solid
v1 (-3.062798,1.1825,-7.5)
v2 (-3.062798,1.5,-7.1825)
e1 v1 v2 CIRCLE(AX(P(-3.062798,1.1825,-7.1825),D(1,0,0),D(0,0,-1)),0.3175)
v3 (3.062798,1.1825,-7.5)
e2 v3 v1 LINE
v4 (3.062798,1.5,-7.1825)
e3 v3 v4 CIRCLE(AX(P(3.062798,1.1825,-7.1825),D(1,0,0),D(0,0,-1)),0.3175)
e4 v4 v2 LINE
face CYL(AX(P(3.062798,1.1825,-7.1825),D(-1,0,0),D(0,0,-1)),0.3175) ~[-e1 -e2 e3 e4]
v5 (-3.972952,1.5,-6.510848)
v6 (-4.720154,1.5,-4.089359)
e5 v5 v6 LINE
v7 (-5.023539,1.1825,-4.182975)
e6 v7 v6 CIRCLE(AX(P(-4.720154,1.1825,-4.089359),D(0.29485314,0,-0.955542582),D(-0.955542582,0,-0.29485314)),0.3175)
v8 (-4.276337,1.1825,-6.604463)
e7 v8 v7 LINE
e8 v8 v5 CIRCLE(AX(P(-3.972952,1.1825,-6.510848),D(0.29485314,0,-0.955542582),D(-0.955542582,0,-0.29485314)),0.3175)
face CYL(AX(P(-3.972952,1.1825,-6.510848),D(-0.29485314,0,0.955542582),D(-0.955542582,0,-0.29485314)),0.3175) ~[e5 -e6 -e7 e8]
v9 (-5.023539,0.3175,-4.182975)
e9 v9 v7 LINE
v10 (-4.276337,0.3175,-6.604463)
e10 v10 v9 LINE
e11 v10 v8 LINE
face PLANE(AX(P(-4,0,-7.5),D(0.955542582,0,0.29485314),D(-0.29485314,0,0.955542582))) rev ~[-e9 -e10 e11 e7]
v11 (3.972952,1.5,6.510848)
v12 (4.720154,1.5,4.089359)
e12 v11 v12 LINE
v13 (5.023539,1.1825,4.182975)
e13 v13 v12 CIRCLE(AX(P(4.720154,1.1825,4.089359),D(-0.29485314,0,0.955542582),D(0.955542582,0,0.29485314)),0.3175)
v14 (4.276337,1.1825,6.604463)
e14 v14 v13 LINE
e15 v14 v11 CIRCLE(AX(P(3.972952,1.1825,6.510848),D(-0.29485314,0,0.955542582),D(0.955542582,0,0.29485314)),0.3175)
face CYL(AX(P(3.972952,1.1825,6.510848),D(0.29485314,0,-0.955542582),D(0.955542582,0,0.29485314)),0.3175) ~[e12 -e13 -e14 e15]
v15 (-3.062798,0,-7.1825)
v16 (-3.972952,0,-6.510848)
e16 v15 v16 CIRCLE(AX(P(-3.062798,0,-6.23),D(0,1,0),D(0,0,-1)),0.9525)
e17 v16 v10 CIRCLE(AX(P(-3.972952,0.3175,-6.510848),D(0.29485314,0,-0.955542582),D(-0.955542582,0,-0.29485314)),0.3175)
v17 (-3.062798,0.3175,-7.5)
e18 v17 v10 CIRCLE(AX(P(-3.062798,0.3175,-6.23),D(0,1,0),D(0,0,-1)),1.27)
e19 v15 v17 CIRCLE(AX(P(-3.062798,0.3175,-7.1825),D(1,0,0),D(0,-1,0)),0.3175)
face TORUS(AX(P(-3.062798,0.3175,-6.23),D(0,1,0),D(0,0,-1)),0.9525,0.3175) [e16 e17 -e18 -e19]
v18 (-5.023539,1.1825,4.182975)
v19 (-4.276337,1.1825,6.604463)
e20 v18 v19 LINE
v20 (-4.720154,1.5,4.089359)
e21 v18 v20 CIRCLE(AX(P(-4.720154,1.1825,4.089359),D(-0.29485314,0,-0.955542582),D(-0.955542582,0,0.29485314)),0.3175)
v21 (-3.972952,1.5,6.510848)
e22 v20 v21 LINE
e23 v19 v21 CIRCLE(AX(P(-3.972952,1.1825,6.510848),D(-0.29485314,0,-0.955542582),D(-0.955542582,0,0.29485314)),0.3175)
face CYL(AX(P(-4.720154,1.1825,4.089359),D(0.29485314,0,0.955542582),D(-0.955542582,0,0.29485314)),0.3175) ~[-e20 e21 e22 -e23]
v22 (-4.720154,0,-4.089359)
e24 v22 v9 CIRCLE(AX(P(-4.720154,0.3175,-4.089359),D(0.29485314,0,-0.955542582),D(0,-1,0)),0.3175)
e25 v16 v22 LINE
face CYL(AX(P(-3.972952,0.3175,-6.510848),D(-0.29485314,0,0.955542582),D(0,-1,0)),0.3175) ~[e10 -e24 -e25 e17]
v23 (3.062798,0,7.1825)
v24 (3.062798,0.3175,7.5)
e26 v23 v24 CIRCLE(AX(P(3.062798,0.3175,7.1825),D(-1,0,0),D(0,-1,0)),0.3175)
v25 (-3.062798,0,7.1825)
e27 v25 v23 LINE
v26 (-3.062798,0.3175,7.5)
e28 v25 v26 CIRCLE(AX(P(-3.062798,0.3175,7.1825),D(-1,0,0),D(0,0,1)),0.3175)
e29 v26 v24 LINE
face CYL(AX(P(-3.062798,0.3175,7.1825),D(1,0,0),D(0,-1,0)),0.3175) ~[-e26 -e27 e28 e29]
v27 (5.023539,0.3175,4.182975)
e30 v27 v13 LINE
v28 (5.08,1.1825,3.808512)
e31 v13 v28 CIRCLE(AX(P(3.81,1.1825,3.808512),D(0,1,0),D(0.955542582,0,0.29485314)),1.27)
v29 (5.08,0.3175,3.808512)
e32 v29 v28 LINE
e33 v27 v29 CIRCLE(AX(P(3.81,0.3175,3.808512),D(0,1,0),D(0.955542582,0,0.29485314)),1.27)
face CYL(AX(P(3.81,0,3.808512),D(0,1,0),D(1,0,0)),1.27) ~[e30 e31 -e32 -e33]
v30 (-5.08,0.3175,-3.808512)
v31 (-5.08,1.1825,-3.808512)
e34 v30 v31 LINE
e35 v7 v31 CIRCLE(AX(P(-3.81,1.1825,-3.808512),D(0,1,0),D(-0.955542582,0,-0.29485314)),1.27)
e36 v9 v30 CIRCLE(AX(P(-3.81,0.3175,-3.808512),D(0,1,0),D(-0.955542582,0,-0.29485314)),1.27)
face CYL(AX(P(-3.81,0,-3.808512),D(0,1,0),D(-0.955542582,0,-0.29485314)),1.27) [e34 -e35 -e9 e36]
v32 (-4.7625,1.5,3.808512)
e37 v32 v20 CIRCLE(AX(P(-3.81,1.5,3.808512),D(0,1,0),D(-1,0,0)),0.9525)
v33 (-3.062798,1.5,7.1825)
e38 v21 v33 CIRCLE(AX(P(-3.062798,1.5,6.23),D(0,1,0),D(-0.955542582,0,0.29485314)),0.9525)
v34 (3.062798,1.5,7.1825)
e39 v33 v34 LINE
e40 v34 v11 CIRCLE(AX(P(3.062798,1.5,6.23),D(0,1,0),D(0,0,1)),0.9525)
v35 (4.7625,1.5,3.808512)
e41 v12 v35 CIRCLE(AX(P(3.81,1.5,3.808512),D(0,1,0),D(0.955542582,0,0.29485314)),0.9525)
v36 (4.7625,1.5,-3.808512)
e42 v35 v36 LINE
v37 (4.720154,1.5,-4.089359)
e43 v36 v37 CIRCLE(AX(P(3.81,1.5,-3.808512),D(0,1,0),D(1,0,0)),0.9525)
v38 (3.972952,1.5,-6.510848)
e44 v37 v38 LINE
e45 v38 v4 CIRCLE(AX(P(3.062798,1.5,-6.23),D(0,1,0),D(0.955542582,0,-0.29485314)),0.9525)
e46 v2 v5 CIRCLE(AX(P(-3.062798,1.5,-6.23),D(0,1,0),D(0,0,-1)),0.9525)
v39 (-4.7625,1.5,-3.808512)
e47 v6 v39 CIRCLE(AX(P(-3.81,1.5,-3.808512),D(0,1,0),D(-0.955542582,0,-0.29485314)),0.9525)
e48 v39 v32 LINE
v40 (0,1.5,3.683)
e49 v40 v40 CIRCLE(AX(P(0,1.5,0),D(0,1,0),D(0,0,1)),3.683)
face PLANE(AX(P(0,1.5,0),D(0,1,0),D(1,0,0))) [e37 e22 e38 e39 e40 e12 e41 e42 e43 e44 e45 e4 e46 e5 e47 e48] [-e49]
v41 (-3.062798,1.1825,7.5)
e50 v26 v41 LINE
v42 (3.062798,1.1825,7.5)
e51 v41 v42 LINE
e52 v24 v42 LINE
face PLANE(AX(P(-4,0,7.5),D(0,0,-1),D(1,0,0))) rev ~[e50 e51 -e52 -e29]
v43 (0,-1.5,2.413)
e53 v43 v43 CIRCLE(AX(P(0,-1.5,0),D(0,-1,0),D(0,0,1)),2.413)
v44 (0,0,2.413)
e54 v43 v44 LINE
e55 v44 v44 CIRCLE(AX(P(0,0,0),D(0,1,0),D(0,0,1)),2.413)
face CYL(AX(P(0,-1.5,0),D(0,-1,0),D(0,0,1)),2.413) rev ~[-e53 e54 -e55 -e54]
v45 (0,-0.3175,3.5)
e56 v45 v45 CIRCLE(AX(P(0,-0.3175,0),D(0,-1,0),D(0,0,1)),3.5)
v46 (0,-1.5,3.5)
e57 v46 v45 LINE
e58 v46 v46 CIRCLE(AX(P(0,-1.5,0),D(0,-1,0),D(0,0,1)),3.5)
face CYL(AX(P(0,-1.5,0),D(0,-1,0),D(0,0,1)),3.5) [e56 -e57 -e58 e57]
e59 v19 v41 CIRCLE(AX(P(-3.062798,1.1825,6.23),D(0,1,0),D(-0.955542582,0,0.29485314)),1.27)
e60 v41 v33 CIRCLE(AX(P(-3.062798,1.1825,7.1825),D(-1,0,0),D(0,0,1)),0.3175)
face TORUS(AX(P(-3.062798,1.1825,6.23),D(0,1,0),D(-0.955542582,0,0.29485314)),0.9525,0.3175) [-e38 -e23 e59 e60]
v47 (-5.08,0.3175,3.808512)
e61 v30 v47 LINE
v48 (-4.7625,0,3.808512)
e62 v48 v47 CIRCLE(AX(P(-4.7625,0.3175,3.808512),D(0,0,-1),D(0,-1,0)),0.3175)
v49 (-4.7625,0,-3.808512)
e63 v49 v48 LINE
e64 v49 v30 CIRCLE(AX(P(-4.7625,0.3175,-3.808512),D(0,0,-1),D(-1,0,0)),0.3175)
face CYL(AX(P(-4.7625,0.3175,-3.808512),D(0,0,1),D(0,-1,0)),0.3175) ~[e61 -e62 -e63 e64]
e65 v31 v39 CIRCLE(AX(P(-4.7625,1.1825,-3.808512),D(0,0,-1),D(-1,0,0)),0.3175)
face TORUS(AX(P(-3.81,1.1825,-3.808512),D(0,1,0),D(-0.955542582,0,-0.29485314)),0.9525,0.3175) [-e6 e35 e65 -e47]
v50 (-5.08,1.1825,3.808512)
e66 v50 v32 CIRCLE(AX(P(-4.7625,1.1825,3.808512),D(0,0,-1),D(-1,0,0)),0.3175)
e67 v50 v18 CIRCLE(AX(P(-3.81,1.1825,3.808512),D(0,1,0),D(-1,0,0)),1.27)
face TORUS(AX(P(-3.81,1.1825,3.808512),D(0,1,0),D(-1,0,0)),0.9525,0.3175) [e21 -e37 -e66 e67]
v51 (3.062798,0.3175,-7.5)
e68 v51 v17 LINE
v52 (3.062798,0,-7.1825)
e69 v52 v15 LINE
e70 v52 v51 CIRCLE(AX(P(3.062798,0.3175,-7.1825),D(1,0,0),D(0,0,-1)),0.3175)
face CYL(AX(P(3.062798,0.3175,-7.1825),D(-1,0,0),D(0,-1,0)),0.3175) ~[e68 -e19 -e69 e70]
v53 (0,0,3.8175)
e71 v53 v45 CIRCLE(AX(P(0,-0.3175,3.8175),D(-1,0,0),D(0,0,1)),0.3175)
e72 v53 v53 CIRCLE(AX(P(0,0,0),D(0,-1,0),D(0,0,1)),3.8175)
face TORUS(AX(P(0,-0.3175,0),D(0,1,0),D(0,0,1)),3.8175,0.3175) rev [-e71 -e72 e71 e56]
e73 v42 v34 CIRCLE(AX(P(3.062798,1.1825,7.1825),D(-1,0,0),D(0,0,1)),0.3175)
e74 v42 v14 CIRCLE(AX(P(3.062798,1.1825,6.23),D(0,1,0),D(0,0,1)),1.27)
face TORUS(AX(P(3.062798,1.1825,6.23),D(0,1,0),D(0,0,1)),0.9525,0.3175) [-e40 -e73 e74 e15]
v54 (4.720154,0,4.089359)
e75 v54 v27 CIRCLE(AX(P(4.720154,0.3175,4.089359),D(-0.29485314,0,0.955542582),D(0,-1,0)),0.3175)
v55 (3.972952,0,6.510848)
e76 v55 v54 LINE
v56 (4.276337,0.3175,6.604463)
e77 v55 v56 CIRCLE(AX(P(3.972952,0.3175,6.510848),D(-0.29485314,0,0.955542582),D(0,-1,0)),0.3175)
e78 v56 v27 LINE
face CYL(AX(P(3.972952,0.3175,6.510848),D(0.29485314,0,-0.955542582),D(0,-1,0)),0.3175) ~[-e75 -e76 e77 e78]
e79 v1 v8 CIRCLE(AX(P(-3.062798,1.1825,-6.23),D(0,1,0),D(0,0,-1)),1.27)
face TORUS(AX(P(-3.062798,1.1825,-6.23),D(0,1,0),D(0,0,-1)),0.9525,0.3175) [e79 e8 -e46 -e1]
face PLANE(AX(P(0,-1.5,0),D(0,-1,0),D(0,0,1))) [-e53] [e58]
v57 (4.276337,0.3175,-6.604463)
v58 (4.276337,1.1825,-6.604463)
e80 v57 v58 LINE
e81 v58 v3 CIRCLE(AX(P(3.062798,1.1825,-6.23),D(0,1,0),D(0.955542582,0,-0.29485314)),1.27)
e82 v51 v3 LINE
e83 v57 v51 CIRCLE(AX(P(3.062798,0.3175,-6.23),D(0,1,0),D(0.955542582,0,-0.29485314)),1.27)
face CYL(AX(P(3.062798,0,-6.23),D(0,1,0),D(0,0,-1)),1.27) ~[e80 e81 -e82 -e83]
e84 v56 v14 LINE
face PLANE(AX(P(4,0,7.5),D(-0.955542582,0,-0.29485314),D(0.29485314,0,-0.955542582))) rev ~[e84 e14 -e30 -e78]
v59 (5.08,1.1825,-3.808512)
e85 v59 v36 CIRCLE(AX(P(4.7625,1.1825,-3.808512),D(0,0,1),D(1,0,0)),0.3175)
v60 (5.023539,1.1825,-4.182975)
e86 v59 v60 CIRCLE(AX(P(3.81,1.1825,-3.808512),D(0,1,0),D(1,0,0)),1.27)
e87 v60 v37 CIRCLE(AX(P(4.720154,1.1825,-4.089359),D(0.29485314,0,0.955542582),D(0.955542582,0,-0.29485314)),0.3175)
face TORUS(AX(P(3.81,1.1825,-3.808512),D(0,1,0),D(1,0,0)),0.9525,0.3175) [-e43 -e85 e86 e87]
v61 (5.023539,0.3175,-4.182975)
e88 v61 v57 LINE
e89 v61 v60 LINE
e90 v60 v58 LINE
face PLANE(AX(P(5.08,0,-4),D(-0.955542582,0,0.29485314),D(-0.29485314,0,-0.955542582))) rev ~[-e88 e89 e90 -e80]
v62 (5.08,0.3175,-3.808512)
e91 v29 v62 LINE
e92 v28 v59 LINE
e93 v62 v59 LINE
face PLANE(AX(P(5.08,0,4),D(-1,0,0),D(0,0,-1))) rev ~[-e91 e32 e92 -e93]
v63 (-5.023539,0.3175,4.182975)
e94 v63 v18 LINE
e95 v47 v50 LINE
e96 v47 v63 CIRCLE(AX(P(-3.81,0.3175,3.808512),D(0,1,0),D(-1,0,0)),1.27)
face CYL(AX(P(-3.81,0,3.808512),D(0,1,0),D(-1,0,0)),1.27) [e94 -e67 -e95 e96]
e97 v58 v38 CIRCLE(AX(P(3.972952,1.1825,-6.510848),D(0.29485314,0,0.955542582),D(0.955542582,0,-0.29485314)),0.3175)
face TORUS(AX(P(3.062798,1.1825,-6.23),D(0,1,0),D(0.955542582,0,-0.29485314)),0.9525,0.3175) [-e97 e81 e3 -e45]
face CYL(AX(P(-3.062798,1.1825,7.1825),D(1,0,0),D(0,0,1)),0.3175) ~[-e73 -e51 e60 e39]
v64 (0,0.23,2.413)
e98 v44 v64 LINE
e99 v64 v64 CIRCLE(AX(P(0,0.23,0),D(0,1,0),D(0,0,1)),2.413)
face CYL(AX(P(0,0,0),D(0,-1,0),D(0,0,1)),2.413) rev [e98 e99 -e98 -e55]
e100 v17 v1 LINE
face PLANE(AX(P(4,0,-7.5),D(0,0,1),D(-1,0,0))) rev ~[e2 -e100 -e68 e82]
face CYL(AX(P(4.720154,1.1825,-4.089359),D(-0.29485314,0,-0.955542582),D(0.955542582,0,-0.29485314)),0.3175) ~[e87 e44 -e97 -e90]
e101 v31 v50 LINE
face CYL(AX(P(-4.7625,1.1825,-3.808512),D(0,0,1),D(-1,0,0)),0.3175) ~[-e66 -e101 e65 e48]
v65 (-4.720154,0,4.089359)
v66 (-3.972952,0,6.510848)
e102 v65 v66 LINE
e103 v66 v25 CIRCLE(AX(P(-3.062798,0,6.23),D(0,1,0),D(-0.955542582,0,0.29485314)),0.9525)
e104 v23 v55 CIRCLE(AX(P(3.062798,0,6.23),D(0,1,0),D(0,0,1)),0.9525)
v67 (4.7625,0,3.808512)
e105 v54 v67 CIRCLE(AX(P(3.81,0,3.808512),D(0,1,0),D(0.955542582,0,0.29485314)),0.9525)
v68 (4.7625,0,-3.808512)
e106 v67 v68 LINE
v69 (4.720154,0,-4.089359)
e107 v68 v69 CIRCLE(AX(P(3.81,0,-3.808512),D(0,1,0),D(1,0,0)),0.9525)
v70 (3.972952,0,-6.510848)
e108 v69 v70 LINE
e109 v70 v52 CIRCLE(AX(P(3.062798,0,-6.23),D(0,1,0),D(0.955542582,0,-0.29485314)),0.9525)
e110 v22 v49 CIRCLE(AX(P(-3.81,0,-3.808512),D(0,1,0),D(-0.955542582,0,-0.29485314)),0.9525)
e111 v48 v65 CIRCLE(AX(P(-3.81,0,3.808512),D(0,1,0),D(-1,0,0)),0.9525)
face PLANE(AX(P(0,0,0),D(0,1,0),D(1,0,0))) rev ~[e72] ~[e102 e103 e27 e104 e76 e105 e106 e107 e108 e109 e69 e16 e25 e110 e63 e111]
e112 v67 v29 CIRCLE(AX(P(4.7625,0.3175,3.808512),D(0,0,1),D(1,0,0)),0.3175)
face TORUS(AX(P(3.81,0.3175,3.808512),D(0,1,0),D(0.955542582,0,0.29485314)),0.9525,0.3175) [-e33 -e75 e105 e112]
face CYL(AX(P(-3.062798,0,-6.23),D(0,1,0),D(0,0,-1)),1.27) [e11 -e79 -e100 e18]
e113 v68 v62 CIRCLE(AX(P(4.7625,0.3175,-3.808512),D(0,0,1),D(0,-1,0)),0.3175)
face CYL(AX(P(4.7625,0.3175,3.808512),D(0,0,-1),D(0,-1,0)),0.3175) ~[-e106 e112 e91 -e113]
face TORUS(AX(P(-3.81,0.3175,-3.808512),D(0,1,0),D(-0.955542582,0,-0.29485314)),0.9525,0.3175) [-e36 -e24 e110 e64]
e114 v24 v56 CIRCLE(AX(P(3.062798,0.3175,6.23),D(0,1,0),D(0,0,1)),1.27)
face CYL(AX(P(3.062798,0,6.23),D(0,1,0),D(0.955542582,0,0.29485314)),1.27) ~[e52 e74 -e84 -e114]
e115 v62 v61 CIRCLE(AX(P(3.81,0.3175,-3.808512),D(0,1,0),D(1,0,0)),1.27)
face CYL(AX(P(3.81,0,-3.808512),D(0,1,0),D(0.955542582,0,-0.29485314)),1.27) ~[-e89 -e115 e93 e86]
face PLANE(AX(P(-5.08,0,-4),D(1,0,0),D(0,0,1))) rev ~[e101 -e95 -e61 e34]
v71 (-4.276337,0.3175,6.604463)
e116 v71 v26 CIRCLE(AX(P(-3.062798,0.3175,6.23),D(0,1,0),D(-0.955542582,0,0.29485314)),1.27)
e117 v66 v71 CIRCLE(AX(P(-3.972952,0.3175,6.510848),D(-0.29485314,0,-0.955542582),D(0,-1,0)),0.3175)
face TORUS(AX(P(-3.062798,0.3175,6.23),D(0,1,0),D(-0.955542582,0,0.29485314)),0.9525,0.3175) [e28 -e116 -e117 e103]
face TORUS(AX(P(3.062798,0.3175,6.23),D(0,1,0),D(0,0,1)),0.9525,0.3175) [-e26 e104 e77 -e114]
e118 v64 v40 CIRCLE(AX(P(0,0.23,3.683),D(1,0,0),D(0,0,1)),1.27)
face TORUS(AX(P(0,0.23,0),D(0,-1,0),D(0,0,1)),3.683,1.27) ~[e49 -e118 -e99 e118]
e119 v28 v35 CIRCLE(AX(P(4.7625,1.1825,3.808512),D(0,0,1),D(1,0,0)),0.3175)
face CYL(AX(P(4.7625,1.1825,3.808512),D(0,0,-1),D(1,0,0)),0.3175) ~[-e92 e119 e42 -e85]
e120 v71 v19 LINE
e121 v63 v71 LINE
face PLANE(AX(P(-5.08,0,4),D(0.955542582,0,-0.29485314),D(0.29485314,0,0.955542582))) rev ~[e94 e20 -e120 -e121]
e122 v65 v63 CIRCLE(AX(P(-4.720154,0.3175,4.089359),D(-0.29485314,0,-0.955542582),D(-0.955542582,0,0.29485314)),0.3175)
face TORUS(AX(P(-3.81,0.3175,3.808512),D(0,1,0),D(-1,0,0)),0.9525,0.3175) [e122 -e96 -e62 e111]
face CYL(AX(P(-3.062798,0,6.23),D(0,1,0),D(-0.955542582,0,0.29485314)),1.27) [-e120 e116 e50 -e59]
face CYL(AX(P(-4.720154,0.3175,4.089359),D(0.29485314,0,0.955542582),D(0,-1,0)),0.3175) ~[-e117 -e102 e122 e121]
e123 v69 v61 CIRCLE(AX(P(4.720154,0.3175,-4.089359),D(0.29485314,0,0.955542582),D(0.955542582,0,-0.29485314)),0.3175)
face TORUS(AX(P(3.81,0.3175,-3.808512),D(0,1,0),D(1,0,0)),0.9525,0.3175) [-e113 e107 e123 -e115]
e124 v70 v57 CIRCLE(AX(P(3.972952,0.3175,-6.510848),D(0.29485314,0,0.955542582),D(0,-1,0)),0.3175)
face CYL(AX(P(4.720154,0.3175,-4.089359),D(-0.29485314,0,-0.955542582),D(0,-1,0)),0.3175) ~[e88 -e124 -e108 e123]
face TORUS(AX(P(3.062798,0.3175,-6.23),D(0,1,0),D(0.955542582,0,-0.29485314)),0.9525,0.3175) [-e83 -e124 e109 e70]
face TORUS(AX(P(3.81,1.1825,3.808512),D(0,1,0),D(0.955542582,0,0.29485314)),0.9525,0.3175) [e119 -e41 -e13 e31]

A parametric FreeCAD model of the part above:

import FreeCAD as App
import Part
import Sketcher
from FreeCAD import Vector
Q = App.Units.Quantity


def edges_at(feature, points):
    """Names of the edges that pass closest to the given points."""
    edges = feature.Shape.Edges
    near = lambda p: min(range(len(edges)), key=lambda i: edges[i].distToShape(Part.Vertex(*p))[0])
    return sorted({f"Edge{near(p) + 1}" for p in points})


def add_polygon(sketch, points):
    """Adds a closed chain of lines whose ends are joined by coincident constraints."""
    first, n = sketch.GeometryCount, len(points)
    for a, b in zip(points, points[1:] + points[:1]):
        sketch.addGeometry(Part.LineSegment(App.Vector(*a, 0), App.Vector(*b, 0)), False)
    for i in range(n):
        sketch.addConstraint(Sketcher.Constraint("Coincident", first + i, 2, first + (i + 1) % n, 1))

doc = App.newDocument("Part")
params = doc.addObject("Spreadsheet::Sheet", "Params")
for row, (alias, value) in enumerate([
    ("sketch1_width", "8 mm"),
    ("pad1_length", "1.5 mm"),
    ("sketch2_diameter", "7 mm"),
    ("pad2_length", "1.5 mm"),
    ("fillet_radius", "1.27 mm"),
    ("fillet2_radius", "0.3175 mm"),
], start=1):
    params.set(f"A{row}", alias)
    params.set(f"B{row}", "=" + value)
    params.setAlias(f"B{row}", alias)

body = doc.addObject("PartDesign::Body", "Body")

# Sketch on XZ plane
sketch1 = doc.addObject("Sketcher::SketchObject", "Sketch")
body.addObject(sketch1)
sketch1.AttachmentSupport = (doc.XZ_Plane, [""])
sketch1.MapMode = "FlatFace"
add_polygon(sketch1, [(4, -7.5), (-4, -7.5), (-5.1, -4), (-5.1, 4), (-4, 7.5), (4, 7.5), (5.1, 4), (5.1, -4)])  # lines 0-7
sketch1.addGeometry(Part.Circle(Vector(0, 0, 0), Vector(0, 0, 1), 2.4), False)  # 8
sketch1.addConstraint(Sketcher.Constraint("Horizontal", 0))
sketch1.addConstraint(Sketcher.Constraint("Vertical", 2))
sketch1.addConstraint(Sketcher.Constraint("Horizontal", 4))
sketch1.addConstraint(Sketcher.Constraint("Vertical", 6))
sketch1.addConstraint(Sketcher.Constraint("Coincident", 8, 3, -1, 1))
sketch1.addConstraint(Sketcher.Constraint("Symmetric", 0, 2, 4, 2, -1, 1))
sketch1.addConstraint(Sketcher.Constraint("Symmetric", 1, 2, 5, 2, -1, 1))
sketch1.addConstraint(Sketcher.Constraint("Parallel", 3, 7))
sketch1.addConstraint(Sketcher.Constraint("Horizontal", 2, 2, 5, 2))
sketch1.addConstraint(Sketcher.Constraint("Horizontal", 1, 2, 6, 2))
sketch1.addConstraint(Sketcher.Constraint("Vertical", 0, 2, 3, 2))
sketch1.addConstraint(Sketcher.Constraint("Equal", 4, 2))
sketch1.addConstraint(Sketcher.Constraint("DistanceX", 0, 2, 0, 1, Q("8 mm")))
sketch1.addConstraint(Sketcher.Constraint("Diameter", 8, Q("4.826 mm")))
sketch1.addConstraint(Sketcher.Constraint("DistanceY", 0, 2, 3, 2, Q("15 mm")))
sketch1.addConstraint(Sketcher.Constraint("DistanceX", 1, 2, -1, 1, Q("5.08 mm")))
sketch1.setExpression("Constraints[20]", "Params.sketch1_width")
pad1 = doc.addObject("PartDesign::Pad", "Pad")
body.addObject(pad1)
pad1.Profile = sketch1
pad1.setExpression("Length", "Params.pad1_length")
pad1.Reversed = True

# Sketch on XZ plane
sketch2 = doc.addObject("Sketcher::SketchObject", "Sketch001")
body.addObject(sketch2)
sketch2.AttachmentSupport = (doc.XZ_Plane, [""])
sketch2.MapMode = "FlatFace"
sketch2.AttachmentOffset = App.Placement(Vector(0, 0, 1.5), App.Rotation())
sketch2.addGeometry(Part.Circle(Vector(0, 0, 0), Vector(0, 0, 1), 3.5), False)
sketch2.addGeometry(Part.Circle(Vector(0, 0, 0), Vector(0, 0, 1), 2.4), False)
sketch2.addConstraint(Sketcher.Constraint("Coincident", 0, 3, -1, 1))
sketch2.addConstraint(Sketcher.Constraint("Coincident", 1, 3, -1, 1))
sketch2.addConstraint(Sketcher.Constraint("Diameter", 0, Q("7 mm")))
sketch2.addConstraint(Sketcher.Constraint("Diameter", 1, Q("4.826 mm")))
sketch2.setExpression("Constraints[2]", "Params.sketch2_diameter")
pad2 = doc.addObject("PartDesign::Pad", "Pad001")
body.addObject(pad2)
pad2.Profile = sketch2
pad2.setExpression("Length", "Params.pad2_length")
pad2.Reversed = True
doc.recompute()

fillet = doc.addObject("PartDesign::Fillet", "Fillet")
body.addObject(fillet)
fillet.Base = (pad2, edges_at(pad2, [
    (-5.08, 0.75, 4),
    (-5.08, 0.75, -4),
    (-4, 0.75, -7.5),
    (4, 0.75, -7.5),
    (5.08, 0.75, -4),
    (5.08, 0.75, 4),
    (4, 0.75, 7.5),
    (-4, 0.75, 7.5),
    (0, 1.5, -2.413),
]))
fillet.setExpression("Radius", "Params.fillet_radius")
doc.recompute()

fillet2 = doc.addObject("PartDesign::Fillet", "Fillet001")
body.addObject(fillet2)
fillet2.Base = (fillet, edges_at(fillet, [
    (0, 0, -3.5),
    (-4.65, 1.5, 5.394),
    (0, 1.5, 7.5),
    (4.65, 1.5, 5.394),
    (5.08, 1.5, 0),
    (4.65, 1.5, -5.394),
    (0, 1.5, -7.5),
    (-4.65, 1.5, -5.394),
    (-5.08, 1.5, 0),
    (5.066, 1.5, 3.998),
    (5.066, 1.5, -3.998),
    (3.817, 1.5, -7.252),
    (-3.817, 1.5, -7.252),
    (-5.066, 1.5, -3.998),
    (-5.066, 1.5, 3.998),
    (-3.817, 1.5, 7.252),
    (3.817, 1.5, 7.252),
    (4.65, 0, 5.394),
    (-4.65, 0, 5.394),
    (-5.08, 0, 0),
    (-4.65, 0, -5.394),
    (0, 0, -7.5),
    (4.65, 0, -5.394),
    (5.08, 0, 0),
    (0, 0, 7.5),
    (5.066, 0, 3.998),
    (5.066, 0, -3.998),
    (3.817, 0, -7.252),
    (-3.817, 0, -7.252),
    (-5.066, 0, -3.998),
    (-5.066, 0, 3.998),
    (-3.817, 0, 7.252),
    (3.817, 0, 7.252),
]))
fillet2.setExpression("Radius", "Params.fillet2_radius")

doc.recompute()
